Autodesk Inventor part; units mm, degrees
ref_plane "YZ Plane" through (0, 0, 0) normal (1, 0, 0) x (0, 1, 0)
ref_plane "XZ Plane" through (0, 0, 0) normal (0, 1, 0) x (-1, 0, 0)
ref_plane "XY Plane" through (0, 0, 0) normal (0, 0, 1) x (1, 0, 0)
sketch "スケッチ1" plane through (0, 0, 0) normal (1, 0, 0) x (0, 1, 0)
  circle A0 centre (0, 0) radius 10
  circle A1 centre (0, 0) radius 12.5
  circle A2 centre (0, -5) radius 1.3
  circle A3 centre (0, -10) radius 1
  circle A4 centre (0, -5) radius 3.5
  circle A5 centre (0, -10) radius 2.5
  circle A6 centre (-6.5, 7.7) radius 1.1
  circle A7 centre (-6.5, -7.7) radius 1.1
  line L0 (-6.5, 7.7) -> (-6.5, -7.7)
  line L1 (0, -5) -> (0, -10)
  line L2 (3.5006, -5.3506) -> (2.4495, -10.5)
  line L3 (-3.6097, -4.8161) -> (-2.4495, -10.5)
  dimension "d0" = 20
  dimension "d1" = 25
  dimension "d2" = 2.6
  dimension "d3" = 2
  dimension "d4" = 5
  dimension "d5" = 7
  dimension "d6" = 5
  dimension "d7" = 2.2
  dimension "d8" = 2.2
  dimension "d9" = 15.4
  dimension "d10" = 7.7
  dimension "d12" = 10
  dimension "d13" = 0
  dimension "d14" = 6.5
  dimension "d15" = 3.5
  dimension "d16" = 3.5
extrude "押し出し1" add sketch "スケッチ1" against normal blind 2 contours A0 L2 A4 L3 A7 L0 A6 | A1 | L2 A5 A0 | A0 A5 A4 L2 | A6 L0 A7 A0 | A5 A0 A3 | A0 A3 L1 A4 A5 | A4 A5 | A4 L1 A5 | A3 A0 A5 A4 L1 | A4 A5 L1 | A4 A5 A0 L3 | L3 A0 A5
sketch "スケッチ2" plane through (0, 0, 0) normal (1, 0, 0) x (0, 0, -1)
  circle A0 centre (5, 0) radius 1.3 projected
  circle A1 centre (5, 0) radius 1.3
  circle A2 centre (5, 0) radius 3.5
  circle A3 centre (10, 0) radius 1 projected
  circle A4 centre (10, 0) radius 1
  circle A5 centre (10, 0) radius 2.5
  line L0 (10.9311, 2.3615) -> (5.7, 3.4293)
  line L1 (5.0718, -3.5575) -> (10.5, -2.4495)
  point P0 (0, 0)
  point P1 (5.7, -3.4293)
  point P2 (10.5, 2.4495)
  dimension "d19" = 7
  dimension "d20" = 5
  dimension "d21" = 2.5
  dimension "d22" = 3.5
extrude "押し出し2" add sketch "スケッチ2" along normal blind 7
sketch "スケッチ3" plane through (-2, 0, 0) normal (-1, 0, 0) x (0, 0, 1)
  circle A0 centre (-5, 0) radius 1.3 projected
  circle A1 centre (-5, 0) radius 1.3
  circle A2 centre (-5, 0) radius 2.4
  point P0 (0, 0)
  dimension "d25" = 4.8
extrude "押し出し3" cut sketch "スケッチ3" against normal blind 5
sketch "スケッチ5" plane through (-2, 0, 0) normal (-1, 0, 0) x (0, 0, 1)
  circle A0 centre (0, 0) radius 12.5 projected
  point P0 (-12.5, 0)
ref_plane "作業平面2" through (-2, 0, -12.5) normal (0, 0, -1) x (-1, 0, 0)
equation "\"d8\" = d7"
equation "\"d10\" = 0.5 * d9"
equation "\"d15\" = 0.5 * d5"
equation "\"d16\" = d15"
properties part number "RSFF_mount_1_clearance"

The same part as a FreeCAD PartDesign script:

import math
import FreeCAD as App
import Part
import Sketcher
from FreeCAD import Vector
Q = App.Units.Quantity

doc = App.newDocument("Part")
body = doc.addObject("PartDesign::Body", "Body")

# Sketch on YZ plane
sketch1 = doc.addObject("Sketcher::SketchObject", "Sketch")
body.addObject(sketch1)
sketch1.AttachmentSupport = (doc.YZ_Plane, [""])
sketch1.MapMode = "FlatFace"
sketch1.addGeometry(Part.Circle(Vector(0, 0, 0), Vector(0, 0, 1), 12.5), False)
sketch1.addGeometry(Part.Circle(Vector(-6.5, -7.7, 0), Vector(0, 0, 1), 1.1), False)
sketch1.addGeometry(Part.Circle(Vector(-6.5, 7.7, 0), Vector(0, 0, 1), 1.1), False)
sketch1.addGeometry(Part.Circle(Vector(0, -5, 0), Vector(0, 0, 1), 1.3), False)
sketch1.addGeometry(Part.Circle(Vector(0, -10, 0), Vector(0, 0, 1), 1), False)
sketch1.addConstraint(Sketcher.Constraint("Coincident", 0, 3, -1, 1))
sketch1.addConstraint(Sketcher.Constraint("Equal", 1, 2))
sketch1.addConstraint(Sketcher.Constraint("Symmetric", 1, 3, 2, 3, -1))
sketch1.addConstraint(Sketcher.Constraint("PointOnObject", 3, 3, -2))
sketch1.addConstraint(Sketcher.Constraint("PointOnObject", 4, 3, -2))
sketch1.addConstraint(Sketcher.Constraint("Diameter", 0, Q("25 mm")))
sketch1.addConstraint(Sketcher.Constraint("Diameter", 4, Q("2 mm")))
sketch1.addConstraint(Sketcher.Constraint("Diameter", 1, Q("2.2 mm")))
sketch1.addConstraint(Sketcher.Constraint("Diameter", 3, Q("2.6 mm")))
sketch1.addConstraint(Sketcher.Constraint("DistanceY", 3, 3, -1, 1, Q("5 mm")))
sketch1.addConstraint(Sketcher.Constraint("DistanceY", 4, 3, -1, 1, Q("10 mm")))
sketch1.addConstraint(Sketcher.Constraint("DistanceX", 1, 3, -1, 1, Q("6.5 mm")))
sketch1.addConstraint(Sketcher.Constraint("DistanceY", 1, 3, -1, 1, Q("7.7 mm")))
pad1 = doc.addObject("PartDesign::Pad", "Pad")
body.addObject(pad1)
pad1.Profile = sketch1
pad1.Length = 2
pad1.Reversed = True

# Sketch on YZ plane
sketch2 = doc.addObject("Sketcher::SketchObject", "Sketch001")
body.addObject(sketch2)
sketch2.AttachmentSupport = (doc.YZ_Plane, [""])
sketch2.MapMode = "FlatFace"
sketch2.addGeometry(Part.LineSegment(Vector(2.4, -10.5, 0), Vector(3.4, -5.7, 0)), False)
sketch2.addGeometry(Part.ArcOfCircle(Part.Circle(Vector(0, -5, 0), Vector(0, 0, 1), 3.5), math.radians(-12), math.radians(192)), False)
sketch2.addGeometry(Part.LineSegment(Vector(-3.4, -5.7, 0), Vector(-2.4, -10.5, 0)), False)
sketch2.addGeometry(Part.ArcOfCircle(Part.Circle(Vector(0, -10, 0), Vector(0, 0, 1), 2.5), math.radians(-168), math.radians(-12)), False)
sketch2.addGeometry(Part.Circle(Vector(0, -10, 0), Vector(0, 0, 1), 1), False)
sketch2.addGeometry(Part.Circle(Vector(0, -5, 0), Vector(0, 0, 1), 1.3), False)
sketch2.addConstraint(Sketcher.Constraint("Tangent", 0, 2, 1, 1))
sketch2.addConstraint(Sketcher.Constraint("Tangent", 1, 2, 2, 1))
sketch2.addConstraint(Sketcher.Constraint("Tangent", 2, 2, 3, 1))
sketch2.addConstraint(Sketcher.Constraint("Tangent", 3, 2, 0, 1))
sketch2.addConstraint(Sketcher.Constraint("Coincident", 4, 3, 3, 3))
sketch2.addConstraint(Sketcher.Constraint("Coincident", 5, 3, 1, 3))
sketch2.addConstraint(Sketcher.Constraint("Symmetric", 0, 2, 1, 2, -2))
sketch2.addConstraint(Sketcher.Constraint("Radius", 1, Q("3.5 mm")))
sketch2.addConstraint(Sketcher.Constraint("Radius", 3, Q("2.5 mm")))
sketch2.addConstraint(Sketcher.Constraint("Diameter", 4, Q("2 mm")))
sketch2.addConstraint(Sketcher.Constraint("DistanceY", 1, 3, -1, 1, Q("5 mm")))
sketch2.addConstraint(Sketcher.Constraint("DistanceY", 3, 3, 1, 3, Q("5 mm")))
sketch2.addConstraint(Sketcher.Constraint("Diameter", 5, Q("2.6 mm")))
pad2 = doc.addObject("PartDesign::Pad", "Pad001")
body.addObject(pad2)
pad2.Profile = sketch2
pad2.Length = 7

# Sketch on YZ plane
sketch3 = doc.addObject("Sketcher::SketchObject", "Sketch002")
body.addObject(sketch3)
sketch3.AttachmentSupport = (doc.YZ_Plane, [""])
sketch3.MapMode = "FlatFace"
sketch3.AttachmentOffset = App.Placement(Vector(0, 0, -2), App.Rotation())
sketch3.addGeometry(Part.Circle(Vector(0, -5, 0), Vector(0, 0, 1), 2.4), False)
sketch3.addGeometry(Part.Circle(Vector(0, -5, 0), Vector(0, 0, 1), 1.3), False)
sketch3.addConstraint(Sketcher.Constraint("Coincident", 1, 3, 0, 3))
sketch3.addConstraint(Sketcher.Constraint("PointOnObject", 0, 3, -2))
sketch3.addConstraint(Sketcher.Constraint("Diameter", 0, Q("4.8 mm")))
sketch3.addConstraint(Sketcher.Constraint("Diameter", 1, Q("2.6 mm")))
sketch3.addConstraint(Sketcher.Constraint("DistanceY", 0, 3, -1, 1, Q("5 mm")))
pocket1 = doc.addObject("PartDesign::Pocket", "Pocket")
body.addObject(pocket1)
pocket1.Profile = sketch3
pocket1.Length = 5
pocket1.Reversed = True

doc.recompute()
